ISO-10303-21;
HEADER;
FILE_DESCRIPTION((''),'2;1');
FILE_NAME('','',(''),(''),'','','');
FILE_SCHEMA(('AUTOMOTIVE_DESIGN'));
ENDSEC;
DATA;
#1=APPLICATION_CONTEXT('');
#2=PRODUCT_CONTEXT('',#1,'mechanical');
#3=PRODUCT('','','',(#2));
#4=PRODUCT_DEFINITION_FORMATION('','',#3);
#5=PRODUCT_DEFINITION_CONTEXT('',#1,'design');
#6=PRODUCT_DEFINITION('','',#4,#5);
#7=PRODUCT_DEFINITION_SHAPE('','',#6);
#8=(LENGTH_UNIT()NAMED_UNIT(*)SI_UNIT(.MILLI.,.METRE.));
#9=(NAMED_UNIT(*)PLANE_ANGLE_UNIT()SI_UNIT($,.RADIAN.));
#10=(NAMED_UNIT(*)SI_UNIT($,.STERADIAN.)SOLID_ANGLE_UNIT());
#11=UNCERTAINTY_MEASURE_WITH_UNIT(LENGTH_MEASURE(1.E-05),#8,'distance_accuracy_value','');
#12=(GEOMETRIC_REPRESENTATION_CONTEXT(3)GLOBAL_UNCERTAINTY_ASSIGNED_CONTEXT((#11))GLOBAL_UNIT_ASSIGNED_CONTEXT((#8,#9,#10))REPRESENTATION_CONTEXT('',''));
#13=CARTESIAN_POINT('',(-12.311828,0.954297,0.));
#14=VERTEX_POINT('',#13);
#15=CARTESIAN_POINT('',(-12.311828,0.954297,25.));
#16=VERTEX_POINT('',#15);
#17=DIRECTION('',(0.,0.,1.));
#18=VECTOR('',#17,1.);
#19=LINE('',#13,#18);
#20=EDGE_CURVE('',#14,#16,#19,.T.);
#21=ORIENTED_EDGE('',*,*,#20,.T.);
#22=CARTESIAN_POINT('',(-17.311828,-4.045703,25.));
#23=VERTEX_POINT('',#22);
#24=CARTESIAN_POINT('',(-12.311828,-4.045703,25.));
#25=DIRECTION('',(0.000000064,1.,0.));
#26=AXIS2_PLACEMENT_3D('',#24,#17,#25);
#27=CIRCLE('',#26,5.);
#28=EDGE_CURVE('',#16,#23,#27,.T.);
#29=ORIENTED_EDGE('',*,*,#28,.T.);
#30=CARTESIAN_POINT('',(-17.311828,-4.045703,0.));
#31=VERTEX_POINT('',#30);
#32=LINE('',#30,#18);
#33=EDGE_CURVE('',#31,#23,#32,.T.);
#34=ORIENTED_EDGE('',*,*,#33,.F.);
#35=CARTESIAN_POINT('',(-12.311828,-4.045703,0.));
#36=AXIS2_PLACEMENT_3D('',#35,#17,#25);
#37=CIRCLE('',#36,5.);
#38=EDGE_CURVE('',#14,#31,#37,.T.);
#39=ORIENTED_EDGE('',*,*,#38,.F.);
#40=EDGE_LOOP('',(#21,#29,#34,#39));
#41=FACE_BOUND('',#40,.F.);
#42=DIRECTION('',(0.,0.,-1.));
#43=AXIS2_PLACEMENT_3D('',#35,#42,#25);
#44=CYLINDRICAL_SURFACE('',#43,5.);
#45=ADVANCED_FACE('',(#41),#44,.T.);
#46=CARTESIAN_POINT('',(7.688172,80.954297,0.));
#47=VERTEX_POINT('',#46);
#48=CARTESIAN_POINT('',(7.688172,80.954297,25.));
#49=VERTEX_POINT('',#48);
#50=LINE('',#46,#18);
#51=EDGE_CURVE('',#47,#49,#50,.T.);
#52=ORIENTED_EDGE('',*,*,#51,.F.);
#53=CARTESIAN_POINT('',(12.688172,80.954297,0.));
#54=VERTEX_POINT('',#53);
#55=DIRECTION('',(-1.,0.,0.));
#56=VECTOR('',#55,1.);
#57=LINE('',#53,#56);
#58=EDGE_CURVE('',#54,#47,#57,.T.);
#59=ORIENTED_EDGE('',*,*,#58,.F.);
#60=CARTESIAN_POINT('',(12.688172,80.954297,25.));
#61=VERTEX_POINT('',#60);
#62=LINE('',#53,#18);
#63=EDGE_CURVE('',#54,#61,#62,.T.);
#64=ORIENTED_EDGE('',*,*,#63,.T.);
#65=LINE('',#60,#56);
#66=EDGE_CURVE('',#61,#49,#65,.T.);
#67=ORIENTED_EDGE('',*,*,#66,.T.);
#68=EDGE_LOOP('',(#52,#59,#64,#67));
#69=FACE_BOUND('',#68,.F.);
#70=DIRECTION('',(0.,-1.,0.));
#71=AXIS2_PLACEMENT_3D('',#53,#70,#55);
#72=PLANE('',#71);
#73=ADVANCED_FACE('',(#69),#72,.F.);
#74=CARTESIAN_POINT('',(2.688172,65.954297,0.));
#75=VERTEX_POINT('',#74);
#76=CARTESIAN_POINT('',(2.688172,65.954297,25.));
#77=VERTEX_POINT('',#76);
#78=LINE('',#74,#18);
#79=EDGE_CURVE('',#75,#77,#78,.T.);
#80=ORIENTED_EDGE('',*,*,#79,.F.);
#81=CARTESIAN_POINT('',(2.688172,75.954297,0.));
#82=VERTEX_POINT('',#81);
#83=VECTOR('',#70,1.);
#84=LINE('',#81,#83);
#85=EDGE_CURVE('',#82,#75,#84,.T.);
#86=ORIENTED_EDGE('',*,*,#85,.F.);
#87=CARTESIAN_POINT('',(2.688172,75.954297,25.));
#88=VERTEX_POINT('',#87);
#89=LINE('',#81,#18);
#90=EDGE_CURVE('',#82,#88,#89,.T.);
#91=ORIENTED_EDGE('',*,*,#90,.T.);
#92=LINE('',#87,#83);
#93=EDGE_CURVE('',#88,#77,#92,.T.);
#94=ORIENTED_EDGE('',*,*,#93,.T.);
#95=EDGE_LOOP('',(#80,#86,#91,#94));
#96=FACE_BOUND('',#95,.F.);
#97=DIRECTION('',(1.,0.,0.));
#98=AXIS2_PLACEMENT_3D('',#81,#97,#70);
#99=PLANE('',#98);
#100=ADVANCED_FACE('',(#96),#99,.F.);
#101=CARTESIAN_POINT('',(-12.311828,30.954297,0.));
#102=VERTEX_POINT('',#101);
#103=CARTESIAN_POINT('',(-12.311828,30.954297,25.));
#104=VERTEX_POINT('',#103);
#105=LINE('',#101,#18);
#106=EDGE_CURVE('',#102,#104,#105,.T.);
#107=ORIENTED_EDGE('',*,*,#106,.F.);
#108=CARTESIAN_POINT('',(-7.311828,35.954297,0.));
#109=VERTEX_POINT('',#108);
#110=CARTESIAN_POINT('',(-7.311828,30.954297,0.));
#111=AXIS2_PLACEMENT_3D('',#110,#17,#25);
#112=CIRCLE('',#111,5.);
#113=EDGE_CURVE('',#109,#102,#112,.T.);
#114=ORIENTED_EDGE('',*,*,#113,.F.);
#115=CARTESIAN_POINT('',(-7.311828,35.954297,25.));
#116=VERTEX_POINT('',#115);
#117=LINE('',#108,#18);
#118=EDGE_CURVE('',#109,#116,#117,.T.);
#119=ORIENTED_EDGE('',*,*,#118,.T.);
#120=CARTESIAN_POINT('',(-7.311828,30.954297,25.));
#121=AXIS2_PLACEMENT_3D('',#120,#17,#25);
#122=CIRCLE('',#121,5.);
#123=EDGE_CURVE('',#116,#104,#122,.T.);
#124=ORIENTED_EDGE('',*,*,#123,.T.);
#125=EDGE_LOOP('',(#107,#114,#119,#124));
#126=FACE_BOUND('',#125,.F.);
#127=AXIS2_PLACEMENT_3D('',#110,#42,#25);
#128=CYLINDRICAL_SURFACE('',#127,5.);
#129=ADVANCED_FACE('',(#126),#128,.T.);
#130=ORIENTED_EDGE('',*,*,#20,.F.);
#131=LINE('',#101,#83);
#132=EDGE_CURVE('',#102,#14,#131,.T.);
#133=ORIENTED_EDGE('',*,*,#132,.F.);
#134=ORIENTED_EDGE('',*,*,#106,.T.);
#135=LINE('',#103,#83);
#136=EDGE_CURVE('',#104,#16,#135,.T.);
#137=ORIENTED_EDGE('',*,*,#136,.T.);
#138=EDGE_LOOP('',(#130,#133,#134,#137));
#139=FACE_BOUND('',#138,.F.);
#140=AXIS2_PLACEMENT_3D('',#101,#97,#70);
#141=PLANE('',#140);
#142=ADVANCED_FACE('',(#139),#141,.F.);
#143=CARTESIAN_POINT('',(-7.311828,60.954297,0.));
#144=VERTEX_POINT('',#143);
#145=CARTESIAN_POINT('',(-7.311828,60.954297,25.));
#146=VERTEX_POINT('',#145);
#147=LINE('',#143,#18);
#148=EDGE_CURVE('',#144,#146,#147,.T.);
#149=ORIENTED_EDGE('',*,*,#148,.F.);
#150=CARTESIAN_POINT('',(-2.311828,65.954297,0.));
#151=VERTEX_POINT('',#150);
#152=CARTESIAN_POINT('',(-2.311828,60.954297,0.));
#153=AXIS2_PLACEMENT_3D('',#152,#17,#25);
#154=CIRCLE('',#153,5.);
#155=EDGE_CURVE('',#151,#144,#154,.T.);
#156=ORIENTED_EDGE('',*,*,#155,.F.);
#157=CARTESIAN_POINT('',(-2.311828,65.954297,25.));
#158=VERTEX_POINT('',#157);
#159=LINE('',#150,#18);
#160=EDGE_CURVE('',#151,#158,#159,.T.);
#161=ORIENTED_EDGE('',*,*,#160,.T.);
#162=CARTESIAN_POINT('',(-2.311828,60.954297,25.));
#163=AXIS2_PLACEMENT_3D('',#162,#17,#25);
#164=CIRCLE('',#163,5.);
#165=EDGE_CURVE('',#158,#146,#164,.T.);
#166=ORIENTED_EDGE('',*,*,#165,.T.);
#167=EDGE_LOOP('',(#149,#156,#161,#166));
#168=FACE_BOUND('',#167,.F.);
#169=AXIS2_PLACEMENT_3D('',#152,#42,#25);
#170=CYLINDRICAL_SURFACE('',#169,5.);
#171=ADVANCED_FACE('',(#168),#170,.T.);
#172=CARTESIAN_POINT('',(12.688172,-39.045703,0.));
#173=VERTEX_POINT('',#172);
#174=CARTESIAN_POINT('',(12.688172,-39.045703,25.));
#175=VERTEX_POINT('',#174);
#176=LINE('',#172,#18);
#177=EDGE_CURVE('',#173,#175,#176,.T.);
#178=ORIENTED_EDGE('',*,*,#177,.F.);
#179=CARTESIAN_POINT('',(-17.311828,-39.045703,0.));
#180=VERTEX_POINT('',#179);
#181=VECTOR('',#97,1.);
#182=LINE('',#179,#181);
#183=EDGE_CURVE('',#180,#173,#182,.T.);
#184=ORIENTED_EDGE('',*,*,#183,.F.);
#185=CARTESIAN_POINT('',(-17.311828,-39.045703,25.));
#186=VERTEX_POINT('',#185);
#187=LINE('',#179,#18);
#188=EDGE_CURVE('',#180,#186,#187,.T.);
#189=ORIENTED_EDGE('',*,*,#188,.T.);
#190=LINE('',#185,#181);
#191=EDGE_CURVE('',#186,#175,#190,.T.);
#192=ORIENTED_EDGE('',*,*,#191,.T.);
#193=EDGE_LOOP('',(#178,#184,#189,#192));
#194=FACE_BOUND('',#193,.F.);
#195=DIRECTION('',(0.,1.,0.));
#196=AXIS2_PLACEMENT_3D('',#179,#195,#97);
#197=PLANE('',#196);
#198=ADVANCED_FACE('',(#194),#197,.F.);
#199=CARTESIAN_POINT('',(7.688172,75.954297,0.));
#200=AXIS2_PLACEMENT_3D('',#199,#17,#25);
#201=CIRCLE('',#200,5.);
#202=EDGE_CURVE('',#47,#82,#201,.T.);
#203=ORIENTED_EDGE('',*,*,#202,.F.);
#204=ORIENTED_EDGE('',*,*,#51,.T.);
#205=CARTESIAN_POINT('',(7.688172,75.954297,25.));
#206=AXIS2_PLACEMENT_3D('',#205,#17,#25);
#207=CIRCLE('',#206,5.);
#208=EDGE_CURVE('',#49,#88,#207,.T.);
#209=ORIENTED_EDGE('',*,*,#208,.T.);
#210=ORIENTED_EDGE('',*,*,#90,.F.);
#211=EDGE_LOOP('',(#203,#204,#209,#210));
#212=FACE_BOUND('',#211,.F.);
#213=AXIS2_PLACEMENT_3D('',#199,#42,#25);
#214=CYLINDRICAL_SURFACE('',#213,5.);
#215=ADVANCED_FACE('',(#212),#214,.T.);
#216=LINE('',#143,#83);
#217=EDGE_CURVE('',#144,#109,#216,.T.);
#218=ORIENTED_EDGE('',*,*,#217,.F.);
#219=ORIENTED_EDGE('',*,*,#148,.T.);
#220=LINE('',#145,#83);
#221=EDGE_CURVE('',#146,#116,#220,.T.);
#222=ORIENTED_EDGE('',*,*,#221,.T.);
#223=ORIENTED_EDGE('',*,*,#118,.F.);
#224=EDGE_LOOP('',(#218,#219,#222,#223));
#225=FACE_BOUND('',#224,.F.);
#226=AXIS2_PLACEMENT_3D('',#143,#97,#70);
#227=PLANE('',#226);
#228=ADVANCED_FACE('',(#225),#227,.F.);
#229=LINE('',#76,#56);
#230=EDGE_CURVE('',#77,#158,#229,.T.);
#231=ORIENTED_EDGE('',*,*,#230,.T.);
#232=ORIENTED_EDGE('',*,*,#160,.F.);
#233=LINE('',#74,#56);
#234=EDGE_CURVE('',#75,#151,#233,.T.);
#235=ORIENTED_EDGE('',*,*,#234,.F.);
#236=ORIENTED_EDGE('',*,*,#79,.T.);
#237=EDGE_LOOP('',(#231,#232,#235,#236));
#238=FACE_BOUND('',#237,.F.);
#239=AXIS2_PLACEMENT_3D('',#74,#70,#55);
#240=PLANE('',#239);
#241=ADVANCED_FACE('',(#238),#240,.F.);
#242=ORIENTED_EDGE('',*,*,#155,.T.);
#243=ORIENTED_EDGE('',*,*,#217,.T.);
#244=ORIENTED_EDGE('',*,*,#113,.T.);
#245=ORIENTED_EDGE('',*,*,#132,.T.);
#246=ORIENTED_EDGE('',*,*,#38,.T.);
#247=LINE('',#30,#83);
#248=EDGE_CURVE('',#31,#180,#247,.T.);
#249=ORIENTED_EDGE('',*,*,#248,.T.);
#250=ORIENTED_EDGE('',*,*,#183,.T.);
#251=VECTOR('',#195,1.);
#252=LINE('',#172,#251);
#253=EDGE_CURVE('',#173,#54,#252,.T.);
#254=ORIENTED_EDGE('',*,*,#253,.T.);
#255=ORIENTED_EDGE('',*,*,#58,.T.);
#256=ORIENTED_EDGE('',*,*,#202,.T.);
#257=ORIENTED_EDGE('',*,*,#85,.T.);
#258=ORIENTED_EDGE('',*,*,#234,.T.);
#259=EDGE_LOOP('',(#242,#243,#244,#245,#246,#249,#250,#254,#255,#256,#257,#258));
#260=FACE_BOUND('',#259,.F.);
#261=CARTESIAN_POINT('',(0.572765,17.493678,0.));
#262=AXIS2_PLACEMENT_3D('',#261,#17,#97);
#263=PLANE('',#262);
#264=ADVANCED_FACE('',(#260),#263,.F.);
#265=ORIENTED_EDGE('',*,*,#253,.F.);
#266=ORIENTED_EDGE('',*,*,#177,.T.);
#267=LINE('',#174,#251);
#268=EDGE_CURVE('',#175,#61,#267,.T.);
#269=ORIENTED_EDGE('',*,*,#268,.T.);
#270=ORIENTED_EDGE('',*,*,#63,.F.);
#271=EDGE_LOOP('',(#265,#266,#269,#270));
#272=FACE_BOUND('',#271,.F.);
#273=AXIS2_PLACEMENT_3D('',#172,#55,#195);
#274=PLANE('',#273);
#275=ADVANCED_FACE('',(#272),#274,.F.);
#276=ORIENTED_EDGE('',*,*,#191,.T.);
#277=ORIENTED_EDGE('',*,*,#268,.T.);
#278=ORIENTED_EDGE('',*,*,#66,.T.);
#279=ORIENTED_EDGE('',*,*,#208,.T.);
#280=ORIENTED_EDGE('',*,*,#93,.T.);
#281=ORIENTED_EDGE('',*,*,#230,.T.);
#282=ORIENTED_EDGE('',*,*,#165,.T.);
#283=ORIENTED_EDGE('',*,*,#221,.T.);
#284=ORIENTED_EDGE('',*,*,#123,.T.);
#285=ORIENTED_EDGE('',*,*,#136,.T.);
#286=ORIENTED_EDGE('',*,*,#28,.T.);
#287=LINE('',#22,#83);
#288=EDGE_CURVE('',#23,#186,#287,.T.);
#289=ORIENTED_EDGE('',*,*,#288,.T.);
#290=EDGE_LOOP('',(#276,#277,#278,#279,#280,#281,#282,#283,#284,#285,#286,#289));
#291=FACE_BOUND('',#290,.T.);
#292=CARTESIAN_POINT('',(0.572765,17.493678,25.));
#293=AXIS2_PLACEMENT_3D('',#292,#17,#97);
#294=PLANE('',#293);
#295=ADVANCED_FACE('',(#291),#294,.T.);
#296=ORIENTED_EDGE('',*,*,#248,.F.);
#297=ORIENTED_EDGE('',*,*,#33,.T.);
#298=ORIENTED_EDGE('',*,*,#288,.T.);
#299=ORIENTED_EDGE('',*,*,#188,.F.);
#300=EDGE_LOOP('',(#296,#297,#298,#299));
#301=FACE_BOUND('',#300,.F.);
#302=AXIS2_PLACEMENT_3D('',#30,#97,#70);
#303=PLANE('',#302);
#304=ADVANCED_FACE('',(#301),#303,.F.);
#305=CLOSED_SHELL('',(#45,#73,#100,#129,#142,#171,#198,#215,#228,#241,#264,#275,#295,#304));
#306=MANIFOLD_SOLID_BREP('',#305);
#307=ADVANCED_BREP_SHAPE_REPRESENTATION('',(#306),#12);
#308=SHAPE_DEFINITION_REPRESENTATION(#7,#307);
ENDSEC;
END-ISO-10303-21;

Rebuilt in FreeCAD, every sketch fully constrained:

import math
import FreeCAD as App
import Part
import Sketcher
Q = App.Units.Quantity

doc = App.newDocument("Part")
body = doc.addObject("PartDesign::Body", "Body")

sketch1 = body.newObject("Sketcher::SketchObject", "Sketch")
sketch1.AttachmentSupport = (doc.getObject("XY_Plane"), [""])
sketch1.MapMode = "FlatFace"
sketch1.addGeometry([
    Part.LineSegment(App.Vector(-17.311828, -39.045703, 0), App.Vector(12.688172, -39.045703, 0)),
    Part.LineSegment(App.Vector(12.688172, -39.045703, 0), App.Vector(12.688172, 80.954297, 0)),
    Part.LineSegment(App.Vector(12.688172, 80.954297, 0), App.Vector(7.688172, 80.954297, 0)),
    Part.ArcOfCircle(Part.Circle(App.Vector(7.688172, 75.954297, 0), App.Vector(0, 0, 1), 5), math.radians(89.999996), math.radians(180.000004)),
    Part.LineSegment(App.Vector(2.688172, 75.954297, 0), App.Vector(2.688172, 65.954297, 0)),
    Part.LineSegment(App.Vector(2.688172, 65.954297, 0), App.Vector(-2.311828, 65.954297, 0)),
    Part.ArcOfCircle(Part.Circle(App.Vector(-2.311828, 60.954297, 0), App.Vector(0, 0, 1), 5), math.radians(89.999996), math.radians(180.000004)),
    Part.LineSegment(App.Vector(-7.311828, 60.954297, 0), App.Vector(-7.311828, 35.954297, 0)),
    Part.ArcOfCircle(Part.Circle(App.Vector(-7.311828, 30.954297, 0), App.Vector(0, 0, 1), 5), math.radians(89.999996), math.radians(180.000004)),
    Part.LineSegment(App.Vector(-12.311828, 30.954297, 0), App.Vector(-12.311828, 0.954297, 0)),
    Part.ArcOfCircle(Part.Circle(App.Vector(-12.311828, -4.045703, 0), App.Vector(0, 0, 1), 5), math.radians(89.999996), math.radians(180.000004)),
    Part.LineSegment(App.Vector(-17.311828, -4.045703, 0), App.Vector(-17.311828, -39.045703, 0)),
], False)
sketch1.addConstraint([
    Sketcher.Constraint("Coincident", 0, 2, 1, 1),
    Sketcher.Constraint("Coincident", 1, 2, 2, 1),
    Sketcher.Constraint("Tangent", 2, 2, 3, 1),
    Sketcher.Constraint("Tangent", 3, 2, 4, 1),
    Sketcher.Constraint("Coincident", 4, 2, 5, 1),
    Sketcher.Constraint("Tangent", 5, 2, 6, 1),
    Sketcher.Constraint("Tangent", 6, 2, 7, 1),
    Sketcher.Constraint("Coincident", 7, 2, 8, 1),
    Sketcher.Constraint("Tangent", 8, 2, 9, 1),
    Sketcher.Constraint("Coincident", 9, 2, 10, 1),
    Sketcher.Constraint("Tangent", 10, 2, 11, 1),
    Sketcher.Constraint("Coincident", 11, 2, 0, 1),
    Sketcher.Constraint("Horizontal", 0),
    Sketcher.Constraint("Vertical", 1),
    Sketcher.Constraint("Horizontal", 2),
    Sketcher.Constraint("Vertical", 4),
    Sketcher.Constraint("Horizontal", 5),
    Sketcher.Constraint("Vertical", 7),
    Sketcher.Constraint("Vertical", 9),
    Sketcher.Constraint("Vertical", 11),
    Sketcher.Constraint("Equal", 3, 6),
    Sketcher.Constraint("Equal", 6, 8),
    Sketcher.Constraint("Equal", 8, 10),
    Sketcher.Constraint("Vertical", 8, 3, 6, 2),
    Sketcher.Constraint("Vertical", 10, 3, 8, 2),
    Sketcher.Constraint("Equal", 2, 5),
    Sketcher.Constraint("Equal", 0, 9),
    Sketcher.Constraint("Radius", 3, Q("5 mm")),
    Sketcher.Constraint("DistanceX", 0, 1, 0, 2, Q("30 mm")),
    Sketcher.Constraint("DistanceY", 1, 1, 1, 2, Q("120 mm")),
    Sketcher.Constraint("DistanceY", 4, 2, 4, 1, Q("10 mm")),
    Sketcher.Constraint("DistanceY", 7, 2, 7, 1, Q("25 mm")),
    Sketcher.Constraint("DistanceX", -1, 1, 3, 3, Q("7.688172 mm")),
    Sketcher.Constraint("DistanceY", -1, 1, 3, 3, Q("75.954297 mm")),
])
pad1 = body.newObject("PartDesign::Pad", "Pad")
pad1.Profile = sketch1
pad1.Length = 25

doc.recompute()
